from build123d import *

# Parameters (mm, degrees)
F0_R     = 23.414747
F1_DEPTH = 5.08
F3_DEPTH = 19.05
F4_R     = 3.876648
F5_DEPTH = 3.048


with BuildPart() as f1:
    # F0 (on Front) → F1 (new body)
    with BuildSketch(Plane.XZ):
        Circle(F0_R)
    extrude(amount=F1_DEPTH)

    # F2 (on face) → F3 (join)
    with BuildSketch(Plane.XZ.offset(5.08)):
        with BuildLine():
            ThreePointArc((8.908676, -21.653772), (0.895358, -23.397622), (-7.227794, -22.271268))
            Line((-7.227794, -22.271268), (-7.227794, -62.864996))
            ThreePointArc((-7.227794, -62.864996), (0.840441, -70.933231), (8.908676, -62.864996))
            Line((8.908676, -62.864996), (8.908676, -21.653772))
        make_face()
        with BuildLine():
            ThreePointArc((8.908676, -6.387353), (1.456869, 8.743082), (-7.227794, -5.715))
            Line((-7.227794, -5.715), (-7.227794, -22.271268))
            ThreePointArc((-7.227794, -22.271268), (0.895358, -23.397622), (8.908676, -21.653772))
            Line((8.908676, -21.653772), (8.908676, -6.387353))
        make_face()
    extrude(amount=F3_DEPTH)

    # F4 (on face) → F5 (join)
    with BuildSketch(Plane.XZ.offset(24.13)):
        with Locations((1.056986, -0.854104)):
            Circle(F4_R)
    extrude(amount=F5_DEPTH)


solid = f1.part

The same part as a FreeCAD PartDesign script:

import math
import FreeCAD as App
import Part
import Sketcher

V = App.Vector
Q = App.Units.Quantity

doc = App.newDocument("Part")
params = doc.addObject("Spreadsheet::Sheet", "Params")
for row, (alias, value) in enumerate([
    ("pad1_length", "0.2 in"),
    ("sketch2_height", "2.2499998 in"),
    ("pad2_length", "0.75 in"),
    ("pad3_length", "0.12 in"),
], start=1):
    params.set(f"A{row}", alias)
    params.set(f"B{row}", "=" + value)
    params.setAlias(f"B{row}", alias)

body = doc.addObject("PartDesign::Body", "Body")

# Sketch on XZ plane
sketch1 = body.newObject("Sketcher::SketchObject", "Sketch")
sketch1.AttachmentSupport = (doc.getObject("XZ_Plane"), [""])
sketch1.MapMode = "FlatFace"
sketch1.addGeometry(Part.Circle(V(0, 0, 0), V(0, 0, 1), 23.414747), False)
sketch1.addConstraint([
    Sketcher.Constraint("Coincident", 0, 3, -1, 1),
    Sketcher.Constraint("Diameter", 0, Q("46.829494 mm")),
])
pad1 = body.newObject("PartDesign::Pad", "Pad")
pad1.Profile = sketch1
pad1.setExpression("Length", "Params.pad1_length")

# Sketch on XZ plane
sketch2 = body.newObject("Sketcher::SketchObject", "Sketch001")
sketch2.AttachmentSupport = (doc.getObject("XZ_Plane"), [""])
sketch2.MapMode = "FlatFace"
sketch2.AttachmentOffset = App.Placement(V(0, 0, 0.2 * 25.4), App.Rotation())
sketch2.addGeometry([
    Part.ArcOfCircle(Part.Circle(V(0.840441, -62.864996, 0), V(0, 0, 1), 8.068235), math.radians(180), math.radians(360)),
    Part.LineSegment(V(8.908676, -62.864996, 0), V(8.908676, -6.387353, 0)),
    Part.ArcOfCircle(Part.Circle(V(1.056986, -0.854104, 0), V(0, 0, 1), 9.605513), math.radians(-35.173147), math.radians(210.401259)),
    Part.LineSegment(V(-7.227794, -5.715, 0), V(-7.227794, -62.864996, 0)),
], False)
sketch2.addConstraint([
    Sketcher.Constraint("Tangent", 0, 2, 1, 1),
    Sketcher.Constraint("Coincident", 1, 2, 2, 1),
    Sketcher.Constraint("Coincident", 2, 2, 3, 1),
    Sketcher.Constraint("Tangent", 3, 2, 0, 1),
    Sketcher.Constraint("Vertical", 1),
    Sketcher.Constraint("Vertical", 3),
    Sketcher.Constraint("DistanceY", 3, 2, 3, 1, Q("2.2499998 in")),
    Sketcher.Constraint("DistanceY", 0, 3, -1, 1, Q("2.4749998 in")),
    Sketcher.Constraint("Radius", 0, Q("8.068235 mm")),
    Sketcher.Constraint("Radius", 2, Q("9.605513 mm")),
    Sketcher.Constraint("DistanceY", 1, 1, 1, 2, Q("56.477643 mm")),
    Sketcher.Constraint("DistanceX", -1, 1, 0, 3, Q("0.840441 mm")),
])
sketch2.setExpression("Constraints[6]", "Params.sketch2_height")
pad2 = body.newObject("PartDesign::Pad", "Pad001")
pad2.Profile = sketch2
pad2.setExpression("Length", "Params.pad2_length")

# Sketch on XZ plane
sketch3 = body.newObject("Sketcher::SketchObject", "Sketch002")
sketch3.AttachmentSupport = (doc.getObject("XZ_Plane"), [""])
sketch3.MapMode = "FlatFace"
sketch3.AttachmentOffset = App.Placement(V(0, 0, 0.95 * 25.4), App.Rotation())
sketch3.addGeometry(Part.Circle(V(1.056986, -0.854104, 0), V(0, 0, 1), 3.876648), False)
sketch3.addConstraint([
    Sketcher.Constraint("Diameter", 0, Q("7.753296 mm")),
    Sketcher.Constraint("DistanceX", -1, 1, 0, 3, Q("1.056986 mm")),
    Sketcher.Constraint("DistanceY", 0, 3, -1, 1, Q("0.854104 mm")),
])
pad3 = body.newObject("PartDesign::Pad", "Pad002")
pad3.Profile = sketch3
pad3.setExpression("Length", "Params.pad3_length")

doc.recompute()
